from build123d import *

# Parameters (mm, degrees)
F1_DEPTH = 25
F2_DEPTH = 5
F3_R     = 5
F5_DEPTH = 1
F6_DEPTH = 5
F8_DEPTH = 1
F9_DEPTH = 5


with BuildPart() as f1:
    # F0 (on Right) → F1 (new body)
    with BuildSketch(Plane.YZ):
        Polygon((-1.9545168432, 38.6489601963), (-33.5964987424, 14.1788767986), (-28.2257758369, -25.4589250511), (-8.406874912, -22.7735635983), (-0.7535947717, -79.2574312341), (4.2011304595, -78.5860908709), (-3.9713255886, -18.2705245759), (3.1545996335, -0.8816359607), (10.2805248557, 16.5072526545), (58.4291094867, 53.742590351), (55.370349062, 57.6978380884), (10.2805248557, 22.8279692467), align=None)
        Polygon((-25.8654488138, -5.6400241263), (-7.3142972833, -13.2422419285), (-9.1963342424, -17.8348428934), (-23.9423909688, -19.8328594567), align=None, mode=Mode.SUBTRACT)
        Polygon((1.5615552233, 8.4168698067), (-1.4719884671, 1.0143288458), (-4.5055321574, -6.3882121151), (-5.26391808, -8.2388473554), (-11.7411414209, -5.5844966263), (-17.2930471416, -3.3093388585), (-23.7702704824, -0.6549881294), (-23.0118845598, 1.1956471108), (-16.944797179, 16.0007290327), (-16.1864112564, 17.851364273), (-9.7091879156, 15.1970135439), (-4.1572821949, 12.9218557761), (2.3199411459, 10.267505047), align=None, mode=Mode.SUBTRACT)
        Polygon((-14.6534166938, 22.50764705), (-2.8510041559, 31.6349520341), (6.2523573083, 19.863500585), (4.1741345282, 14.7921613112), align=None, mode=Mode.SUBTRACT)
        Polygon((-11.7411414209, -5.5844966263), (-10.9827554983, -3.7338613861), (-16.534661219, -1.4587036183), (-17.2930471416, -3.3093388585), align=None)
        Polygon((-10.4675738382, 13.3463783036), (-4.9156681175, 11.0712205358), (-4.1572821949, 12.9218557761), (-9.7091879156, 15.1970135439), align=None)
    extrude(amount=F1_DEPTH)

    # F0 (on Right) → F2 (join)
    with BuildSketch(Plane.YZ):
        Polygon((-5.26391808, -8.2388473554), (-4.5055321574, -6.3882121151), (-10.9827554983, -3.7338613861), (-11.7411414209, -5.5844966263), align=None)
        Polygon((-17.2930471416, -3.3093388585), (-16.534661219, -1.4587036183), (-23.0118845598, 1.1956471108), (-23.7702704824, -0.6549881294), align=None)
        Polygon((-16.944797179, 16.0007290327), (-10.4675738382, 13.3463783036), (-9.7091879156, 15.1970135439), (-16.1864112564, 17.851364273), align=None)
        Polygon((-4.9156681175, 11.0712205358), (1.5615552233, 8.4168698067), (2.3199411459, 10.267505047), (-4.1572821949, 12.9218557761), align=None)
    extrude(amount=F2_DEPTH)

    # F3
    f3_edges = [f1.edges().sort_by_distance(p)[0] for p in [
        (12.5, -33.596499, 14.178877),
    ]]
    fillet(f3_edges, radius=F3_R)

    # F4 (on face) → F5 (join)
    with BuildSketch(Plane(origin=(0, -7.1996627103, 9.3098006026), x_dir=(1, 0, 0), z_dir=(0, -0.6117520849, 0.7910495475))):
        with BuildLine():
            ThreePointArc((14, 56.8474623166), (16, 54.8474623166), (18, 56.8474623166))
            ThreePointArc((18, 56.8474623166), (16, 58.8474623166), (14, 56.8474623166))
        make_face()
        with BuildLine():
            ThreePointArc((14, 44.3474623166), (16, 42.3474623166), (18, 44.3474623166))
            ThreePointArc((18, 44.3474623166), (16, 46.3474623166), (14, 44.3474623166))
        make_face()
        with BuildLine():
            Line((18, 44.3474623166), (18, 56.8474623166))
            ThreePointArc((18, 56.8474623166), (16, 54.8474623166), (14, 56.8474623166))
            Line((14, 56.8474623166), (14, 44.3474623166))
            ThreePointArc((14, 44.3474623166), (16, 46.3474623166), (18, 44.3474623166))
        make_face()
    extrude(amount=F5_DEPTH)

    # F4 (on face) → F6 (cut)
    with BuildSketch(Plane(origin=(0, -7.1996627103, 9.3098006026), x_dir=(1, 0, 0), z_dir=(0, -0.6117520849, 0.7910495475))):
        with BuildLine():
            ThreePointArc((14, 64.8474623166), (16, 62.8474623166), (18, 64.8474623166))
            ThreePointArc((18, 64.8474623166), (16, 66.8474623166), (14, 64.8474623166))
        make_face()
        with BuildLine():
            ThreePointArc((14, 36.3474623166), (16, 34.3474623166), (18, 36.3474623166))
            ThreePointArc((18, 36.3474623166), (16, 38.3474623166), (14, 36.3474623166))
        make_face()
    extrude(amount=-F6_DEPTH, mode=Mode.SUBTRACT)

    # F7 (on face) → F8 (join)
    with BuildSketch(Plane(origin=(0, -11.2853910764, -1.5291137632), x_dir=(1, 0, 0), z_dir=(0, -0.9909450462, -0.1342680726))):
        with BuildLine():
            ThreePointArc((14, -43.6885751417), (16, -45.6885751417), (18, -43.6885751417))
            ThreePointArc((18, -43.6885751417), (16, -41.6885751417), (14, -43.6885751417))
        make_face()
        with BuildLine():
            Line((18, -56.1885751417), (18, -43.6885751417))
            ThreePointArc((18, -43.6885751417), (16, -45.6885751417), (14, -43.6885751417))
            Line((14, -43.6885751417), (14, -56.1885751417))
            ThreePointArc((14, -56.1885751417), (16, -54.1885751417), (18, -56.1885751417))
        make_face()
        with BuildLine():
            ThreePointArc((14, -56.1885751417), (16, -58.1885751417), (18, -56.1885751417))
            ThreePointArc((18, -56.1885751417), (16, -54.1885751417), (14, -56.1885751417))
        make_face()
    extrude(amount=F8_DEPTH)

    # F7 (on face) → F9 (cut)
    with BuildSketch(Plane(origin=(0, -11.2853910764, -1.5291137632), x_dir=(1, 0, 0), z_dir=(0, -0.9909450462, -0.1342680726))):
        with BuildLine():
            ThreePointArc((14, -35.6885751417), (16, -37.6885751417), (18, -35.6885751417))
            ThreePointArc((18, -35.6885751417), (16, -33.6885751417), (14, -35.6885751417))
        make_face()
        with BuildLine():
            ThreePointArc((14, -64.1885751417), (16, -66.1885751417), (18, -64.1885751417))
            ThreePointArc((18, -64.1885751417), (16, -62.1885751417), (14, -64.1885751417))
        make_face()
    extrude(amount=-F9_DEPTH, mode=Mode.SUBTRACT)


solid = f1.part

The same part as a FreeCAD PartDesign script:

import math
import FreeCAD as App
import Part
import Sketcher


def edges_at(feature, points):
    """Names of the edges that pass closest to the given points."""
    edges = feature.Shape.Edges
    near = lambda p: min(range(len(edges)), key=lambda i: edges[i].distToShape(Part.Vertex(*p))[0])
    return sorted({f"Edge{near(p) + 1}" for p in points})


def add_polygon(sketch, points):
    """Adds a closed chain of lines whose ends are joined by coincident constraints."""
    first, n = sketch.GeometryCount, len(points)
    for a, b in zip(points, points[1:] + points[:1]):
        sketch.addGeometry(Part.LineSegment(App.Vector(*a, 0), App.Vector(*b, 0)), False)
    for i in range(n):
        sketch.addConstraint(Sketcher.Constraint("Coincident", first + i, 2, first + (i + 1) % n, 1))

doc = App.newDocument("Part")
body = doc.addObject("PartDesign::Body", "Body")

sketch1 = doc.addObject("Sketcher::SketchObject", "Sketch")
body.addObject(sketch1)
sketch1.AttachmentSupport = (doc.YZ_Plane, [""])
sketch1.MapMode = "FlatFace"
add_polygon(sketch1, [(-1.954517, 38.64896), (-33.596499, 14.178877), (-28.225776, -25.458925), (-8.406875, -22.773564), (-0.753595, -79.257431), (4.20113, -78.586091), (-3.971326, -18.270525), (3.1546, -0.881636), (10.280525, 16.507253), (58.429109, 53.74259), (55.370349, 57.697838), (10.280525, 22.827969)])
add_polygon(sketch1, [(-23.942391, -19.832859), (-25.865449, -5.640024), (-7.314297, -13.242242), (-9.196334, -17.834843)])
add_polygon(sketch1, [(2.319941, 10.267505), (1.561555, 8.41687), (-1.471988, 1.014329), (-4.505532, -6.388212), (-5.263918, -8.238847), (-11.741141, -5.584497), (-10.982755, -3.733861), (-16.534661, -1.458704), (-17.293047, -3.309339), (-23.77027, -0.654988), (-23.011885, 1.195647), (-16.944797, 16.000729), (-16.186411, 17.851364), (-9.709188, 15.197014), (-10.467574, 13.346378), (-4.915668, 11.071221), (-4.157282, 12.921856)])
add_polygon(sketch1, [(4.174135, 14.792161), (-14.653417, 22.507647), (-2.851004, 31.634952), (6.252357, 19.863501)])
sketch1.addConstraint([
    Sketcher.Constraint("Distance", 0, 40.0),
    Sketcher.Constraint("Distance", 1, 40.0),
    Sketcher.Constraint("Distance", 2, 20.0),
    Sketcher.Constraint("Distance", 3, 57.0),
    Sketcher.Constraint("Distance", 4, 5.0),
    Sketcher.Constraint("Distance", 9, 5.0),
    Sketcher.Constraint("Distance", 10, 57.0),
    Sketcher.Constraint("Distance", 11, 20.0),
    Sketcher.Constraint("Distance", 16, 2.0),
    Sketcher.Constraint("Distance", 17, 8.0),
    Sketcher.Constraint("Distance", 18, 8.0),
    Sketcher.Constraint("Distance", 19, 2.0),
    Sketcher.Constraint("Distance", 20, 7.0),
    Sketcher.Constraint("Distance", 21, 2.0),
    Sketcher.Constraint("Distance", 22, 6.0),
    Sketcher.Constraint("Distance", 23, 2.0),
    Sketcher.Constraint("Distance", 24, 7.0),
    Sketcher.Constraint("Distance", 25, 2.0),
    Sketcher.Constraint("Distance", 26, 16.0),
    Sketcher.Constraint("Distance", 27, 2.0),
    Sketcher.Constraint("Distance", 28, 7.0),
    Sketcher.Constraint("Distance", 29, 2.0),
    Sketcher.Constraint("Distance", 30, 6.0),
    Sketcher.Constraint("Distance", 31, 2.0),
    Sketcher.Constraint("Distance", 32, 7.0),
    Sketcher.Constraint("Distance", 15, 14.880802),
    Sketcher.Constraint("Distance", 35, 14.880802),
    Sketcher.Constraint("DistanceX", 0, 2, -1, 1, 33.596499),
    Sketcher.Constraint("DistanceX", -1, 1, 6, 2, 3.1546),
    Sketcher.Constraint("DistanceY", -1, 1, 35, 2, 19.863501),
    Sketcher.Constraint("DistanceY", 1, 2, 0, 2, 39.637802),
    Sketcher.Constraint("DistanceX", 1, 2, 2, 2, 19.818901),
    Sketcher.Constraint("DistanceY", 1, 2, 5, 2, 7.1884),
    Sketcher.Constraint("DistanceX", 2, 2, 7, 2, 18.6874),
    Sketcher.Constraint("DistanceX", 2, 2, 10, 2, 18.6874),
    Sketcher.Constraint("DistanceY", 1, 2, 12, 2, 19.818901),
    Sketcher.Constraint("DistanceY", 14, 2, 13, 2, 4.592601),
    Sketcher.Constraint("DistanceY", 16, 2, 10, 2, 14.411099),
    Sketcher.Constraint("DistanceX", 12, 2, 23, 2, 8.572402),
    Sketcher.Constraint("DistanceX", 0, 2, 26, 2, 16.651702),
    Sketcher.Constraint("DistanceX", 28, 2, 17, 2, 8.237199),
    Sketcher.Constraint("Distance", 5, 60.866712),
    Sketcher.Constraint("Distance", 8, 60.866712),
    Sketcher.Constraint("Distance", 14, 4.96327),
    Sketcher.Constraint("Distance", 34, 14.919941),
    Sketcher.Constraint("DistanceY", 3, 2, -1, 1, 79.257431),
    Sketcher.Constraint("DistanceX", -1, 1, 4, 2, 4.20113),
    Sketcher.Constraint("DistanceY", 4, 2, -1, 1, 78.586091),
    Sketcher.Constraint("DistanceX", -1, 1, 8, 2, 58.429109),
    Sketcher.Constraint("DistanceY", -1, 1, 8, 2, 53.74259),
    Sketcher.Constraint("DistanceX", -1, 1, 9, 2, 55.370349),
    Sketcher.Constraint("DistanceX", 12, 2, -1, 1, 25.865449),
    Sketcher.Constraint("DistanceY", 13, 2, -1, 1, 13.242242),
    Sketcher.Constraint("DistanceX", 15, 2, -1, 1, 23.942391),
    Sketcher.Constraint("DistanceY", 15, 2, -1, 1, 19.832859),
    Sketcher.Constraint("DistanceX", 17, 2, -1, 1, 1.471988),
    Sketcher.Constraint("DistanceY", -1, 1, 17, 2, 1.014329),
    Sketcher.Constraint("DistanceX", 19, 2, -1, 1, 5.263918),
    Sketcher.Constraint("DistanceX", 20, 2, -1, 1, 11.741141),
    Sketcher.Constraint("DistanceY", 21, 2, -1, 1, 3.733861),
    Sketcher.Constraint("DistanceX", 22, 2, -1, 1, 16.534661),
    Sketcher.Constraint("DistanceX", 24, 2, -1, 1, 23.77027),
    Sketcher.Constraint("DistanceX", 27, 2, -1, 1, 16.186411),
    Sketcher.Constraint("DistanceY", -1, 1, 29, 2, 13.346378),
    Sketcher.Constraint("DistanceX", 30, 2, -1, 1, 4.915668),
    Sketcher.Constraint("DistanceX", -1, 1, 32, 2, 2.319941),
    Sketcher.Constraint("DistanceY", -1, 1, 36, 2, 14.792161),
    Sketcher.Constraint("DistanceY", 5, 2, 6, 2, 17.388889),
    Sketcher.Constraint("DistanceY", 13, 2, 18, 2, 6.85403),
    Sketcher.Constraint("DistanceY", 22, 2, 25, 2, 2.654351),
    Sketcher.Constraint("DistanceX", 26, 2, 33, 2, 2.29138),
    Sketcher.Constraint("DistanceY", 26, 2, 33, 2, 6.506918),
    Sketcher.Constraint("DistanceY", 34, 2, 11, 2, 7.014008),
    Sketcher.Constraint("DistanceX", 36, 2, 7, 2, 6.10639),
])
pad1 = doc.addObject("PartDesign::Pad", "Pad")
body.addObject(pad1)
pad1.Profile = sketch1
pad1.Length = 25

sketch2 = doc.addObject("Sketcher::SketchObject", "Sketch001")
body.addObject(sketch2)
sketch2.AttachmentSupport = (doc.YZ_Plane, [""])
sketch2.MapMode = "FlatFace"
add_polygon(sketch2, [(-5.3, -8.2), (-4.5, -6.4), (-11, -3.7), (-11.7, -5.6)])
add_polygon(sketch2, [(-17.3, -3.3), (-16.5, -1.5), (-23, 1.2), (-23.8, -0.7)])
add_polygon(sketch2, [(-16.9, 16), (-10.5, 13.3), (-9.7, 15.2), (-16.2, 17.9)])
add_polygon(sketch2, [(-4.9, 11.1), (1.6, 8.4), (2.3, 10.3), (-4.2, 12.9)])
sketch2.addConstraint([
    Sketcher.Constraint("Perpendicular", 0, 1),
    Sketcher.Constraint("Perpendicular", 1, 2),
    Sketcher.Constraint("Perpendicular", 2, 3),
    Sketcher.Constraint("Perpendicular", 3, 4),
    Sketcher.Constraint("Perpendicular", 4, 5),
    Sketcher.Constraint("Perpendicular", 5, 6),
    Sketcher.Constraint("Perpendicular", 6, 7),
    Sketcher.Constraint("Parallel", 7, 8),
    Sketcher.Constraint("Perpendicular", 8, 9),
    Sketcher.Constraint("Perpendicular", 9, 10),
    Sketcher.Constraint("Perpendicular", 10, 11),
    Sketcher.Constraint("Perpendicular", 11, 12),
    Sketcher.Constraint("Perpendicular", 12, 13),
    Sketcher.Constraint("Perpendicular", 13, 14),
    Sketcher.Constraint("Perpendicular", 14, 15),
    Sketcher.Constraint("Equal", 2, 4),
    Sketcher.Constraint("Equal", 3, 5),
    Sketcher.Constraint("Equal", 7, 8),
    Sketcher.Constraint("Equal", 6, 9),
    Sketcher.Constraint("Equal", 10, 12),
    Sketcher.Constraint("Equal", 11, 13),
    Sketcher.Constraint("Distance", 0, 2.0),
    Sketcher.Constraint("Distance", 1, 7.0),
    Sketcher.Constraint("DistanceY", 1, 2, -1, 1, 3.733861),
    Sketcher.Constraint("DistanceX", 2, 2, -1, 1, 11.741141),
    Sketcher.Constraint("DistanceX", 3, 2, -1, 1, 5.263918),
    Sketcher.Constraint("DistanceX", 4, 2, -1, 1, 16.534661),
    Sketcher.Constraint("DistanceY", 6, 2, -1, 1, 0.654988),
    Sketcher.Constraint("DistanceY", -1, 1, 8, 2, 13.346378),
    Sketcher.Constraint("DistanceX", 10, 2, -1, 1, 16.186411),
    Sketcher.Constraint("DistanceY", -1, 1, 12, 2, 8.41687),
    Sketcher.Constraint("DistanceX", -1, 1, 13, 2, 2.319941),
])
pad2 = doc.addObject("PartDesign::Pad", "Pad001")
body.addObject(pad2)
pad2.Profile = sketch2
pad2.Length = 5
doc.recompute()

fillet = doc.addObject("PartDesign::Fillet", "Fillet")
body.addObject(fillet)
fillet.Base = (pad2, edges_at(pad2, [(12.5, -33.596, 14.179)]))
fillet.Radius = 5

sketch3 = doc.addObject("Sketcher::SketchObject", "Sketch002")
body.addObject(sketch3)
sketch3.Placement = App.Placement(App.Vector(0, -7.199663, 9.309801), App.Rotation(App.Vector(1, 0, 0), App.Vector(0, 0.791049548, 0.611752085), App.Vector(0, -0.611752085, 0.791049548), "ZXY"))
sketch3.addGeometry([
    Part.ArcOfCircle(Part.Circle(App.Vector(16, 56.8, 0), App.Vector(0, 0, 1), 2), math.radians(0), math.radians(180)),
    Part.LineSegment(App.Vector(14, 56.8, 0), App.Vector(14, 44.3, 0)),
    Part.ArcOfCircle(Part.Circle(App.Vector(16, 44.3, 0), App.Vector(0, 0, 1), 2), math.radians(180), math.radians(360)),
    Part.LineSegment(App.Vector(18, 44.3, 0), App.Vector(18, 56.8, 0)),
], False)
sketch3.addConstraint([
    Sketcher.Constraint("Tangent", 0, 2, 1, 1),
    Sketcher.Constraint("Tangent", 1, 2, 2, 1),
    Sketcher.Constraint("Tangent", 2, 2, 3, 1),
    Sketcher.Constraint("Tangent", 3, 2, 0, 1),
    Sketcher.Constraint("Vertical", 1),
    Sketcher.Constraint("Vertical", 3),
    Sketcher.Constraint("Radius", 0, 2.0),
    Sketcher.Constraint("DistanceY", 1, 2, 1, 1, 12.5),
    Sketcher.Constraint("DistanceX", -1, 1, 0, 3, 16.0),
    Sketcher.Constraint("DistanceY", -1, 1, 0, 3, 56.847462),
])
pad3 = doc.addObject("PartDesign::Pad", "Pad002")
body.addObject(pad3)
pad3.Profile = sketch3
pad3.Length = 1

sketch4 = doc.addObject("Sketcher::SketchObject", "Sketch003")
body.addObject(sketch4)
sketch4.Placement = App.Placement(App.Vector(0, -7.199663, 9.309801), App.Rotation(App.Vector(1, 0, 0), App.Vector(0, 0.791049548, 0.611752085), App.Vector(0, -0.611752085, 0.791049548), "ZXY"))
sketch4.addGeometry([
    Part.Circle(App.Vector(16, 64.8, 0), App.Vector(0, 0, 1), 2),
    Part.Circle(App.Vector(16, 36.3, 0), App.Vector(0, 0, 1), 2),
], False)
sketch4.addConstraint([
    Sketcher.Constraint("Equal", 0, 1),
    Sketcher.Constraint("Vertical", 0, 3, 1, 3),
    Sketcher.Constraint("Diameter", 0, 4.0),
    Sketcher.Constraint("DistanceX", -1, 1, 0, 3, 16.0),
    Sketcher.Constraint("DistanceY", 1, 3, 0, 3, 28.5),
    Sketcher.Constraint("DistanceY", -1, 1, 0, 3, 64.847462),
])
pocket1 = doc.addObject("PartDesign::Pocket", "Pocket")
body.addObject(pocket1)
pocket1.Profile = sketch4
pocket1.Length = 5

sketch5 = doc.addObject("Sketcher::SketchObject", "Sketch004")
body.addObject(sketch5)
sketch5.Placement = App.Placement(App.Vector(0, -11.285391, -1.529114), App.Rotation(App.Vector(1, 0, 0), App.Vector(0, -0.134268073, 0.990945046), App.Vector(0, -0.990945046, -0.134268073), "ZXY"))
sketch5.addGeometry([
    Part.ArcOfCircle(Part.Circle(App.Vector(16, -43.7, 0), App.Vector(0, 0, 1), 2), math.radians(0), math.radians(180)),
    Part.LineSegment(App.Vector(14, -43.7, 0), App.Vector(14, -56.2, 0)),
    Part.ArcOfCircle(Part.Circle(App.Vector(16, -56.2, 0), App.Vector(0, 0, 1), 2), math.radians(180), math.radians(360)),
    Part.LineSegment(App.Vector(18, -56.2, 0), App.Vector(18, -43.7, 0)),
], False)
sketch5.addConstraint([
    Sketcher.Constraint("Tangent", 0, 2, 1, 1),
    Sketcher.Constraint("Tangent", 1, 2, 2, 1),
    Sketcher.Constraint("Tangent", 2, 2, 3, 1),
    Sketcher.Constraint("Tangent", 3, 2, 0, 1),
    Sketcher.Constraint("Vertical", 1),
    Sketcher.Constraint("Vertical", 3),
    Sketcher.Constraint("Radius", 0, 2.0),
    Sketcher.Constraint("DistanceY", 1, 2, 1, 1, 12.5),
    Sketcher.Constraint("DistanceX", -1, 1, 0, 3, 16.0),
    Sketcher.Constraint("DistanceY", 0, 3, -1, 1, 43.688575),
])
pad4 = doc.addObject("PartDesign::Pad", "Pad003")
body.addObject(pad4)
pad4.Profile = sketch5
pad4.Length = 1

sketch6 = doc.addObject("Sketcher::SketchObject", "Sketch005")
body.addObject(sketch6)
sketch6.Placement = App.Placement(App.Vector(0, -11.285391, -1.529114), App.Rotation(App.Vector(1, 0, 0), App.Vector(0, -0.134268073, 0.990945046), App.Vector(0, -0.990945046, -0.134268073), "ZXY"))
sketch6.addGeometry([
    Part.Circle(App.Vector(16, -35.7, 0), App.Vector(0, 0, 1), 2),
    Part.Circle(App.Vector(16, -64.2, 0), App.Vector(0, 0, 1), 2),
], False)
sketch6.addConstraint([
    Sketcher.Constraint("Equal", 0, 1),
    Sketcher.Constraint("Vertical", 0, 3, 1, 3),
    Sketcher.Constraint("Diameter", 0, 4.0),
    Sketcher.Constraint("DistanceX", -1, 1, 0, 3, 16.0),
    Sketcher.Constraint("DistanceY", 1, 3, 0, 3, 28.5),
    Sketcher.Constraint("DistanceY", 0, 3, -1, 1, 35.688575),
])
pocket2 = doc.addObject("PartDesign::Pocket", "Pocket001")
body.addObject(pocket2)
pocket2.Profile = sketch6
pocket2.Length = 5

doc.recompute()
